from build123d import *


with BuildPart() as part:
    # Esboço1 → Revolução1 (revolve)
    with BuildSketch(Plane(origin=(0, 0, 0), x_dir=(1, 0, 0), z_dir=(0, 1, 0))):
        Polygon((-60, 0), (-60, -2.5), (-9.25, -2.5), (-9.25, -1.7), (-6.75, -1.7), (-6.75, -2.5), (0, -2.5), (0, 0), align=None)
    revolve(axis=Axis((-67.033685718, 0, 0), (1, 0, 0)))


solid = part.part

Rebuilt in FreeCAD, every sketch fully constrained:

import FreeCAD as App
import Part
import Sketcher
Q = App.Units.Quantity

doc = App.newDocument("Part")
body = doc.addObject("PartDesign::Body", "Body")

sketch1 = body.newObject("Sketcher::SketchObject", "Sketch")
sketch1.AttachmentSupport = (doc.getObject("XZ_Plane"), [""])
sketch1.MapMode = "FlatFace"
sketch1.addGeometry([
    Part.LineSegment(App.Vector(-60, 0, 0), App.Vector(-60, 2.5, 0)),
    Part.LineSegment(App.Vector(-60, 2.5, 0), App.Vector(-9.25, 2.5, 0)),
    Part.LineSegment(App.Vector(-9.25, 2.5, 0), App.Vector(-9.25, 1.7, 0)),
    Part.LineSegment(App.Vector(-9.25, 1.7, 0), App.Vector(-6.75, 1.7, 0)),
    Part.LineSegment(App.Vector(-6.75, 1.7, 0), App.Vector(-6.75, 2.5, 0)),
    Part.LineSegment(App.Vector(-6.75, 2.5, 0), App.Vector(0, 2.5, 0)),
    Part.LineSegment(App.Vector(0, 2.5, 0), App.Vector(0, 0, 0)),
    Part.LineSegment(App.Vector(0, 0, 0), App.Vector(-60, 0, 0)),
], False)
sketch1.addConstraint([
    Sketcher.Constraint("Coincident", 0, 2, 1, 1),
    Sketcher.Constraint("Coincident", 1, 2, 2, 1),
    Sketcher.Constraint("Coincident", 2, 2, 3, 1),
    Sketcher.Constraint("Coincident", 3, 2, 4, 1),
    Sketcher.Constraint("Coincident", 4, 2, 5, 1),
    Sketcher.Constraint("Coincident", 5, 2, 6, 1),
    Sketcher.Constraint("Coincident", 6, 2, 7, 1),
    Sketcher.Constraint("Coincident", 7, 2, 0, 1),
    Sketcher.Constraint("Vertical", 0),
    Sketcher.Constraint("Horizontal", 1),
    Sketcher.Constraint("Vertical", 2),
    Sketcher.Constraint("Horizontal", 3),
    Sketcher.Constraint("Vertical", 4),
    Sketcher.Constraint("Horizontal", 5),
    Sketcher.Constraint("Vertical", 6),
    Sketcher.Constraint("Horizontal", 7),
    Sketcher.Constraint("Coincident", 6, 2, -1, 1),
    Sketcher.Constraint("Horizontal", 1, 2, 4, 2),
    Sketcher.Constraint("Equal", 3, 0),
    Sketcher.Constraint("DistanceX", 7, 2, 7, 1, Q("60 mm")),
    Sketcher.Constraint("DistanceX", 3, 1, 3, 2, Q("2.5 mm")),
    Sketcher.Constraint("DistanceY", 2, 2, 2, 1, Q("0.8 mm")),
    Sketcher.Constraint("DistanceX", 1, 1, 1, 2, Q("50.75 mm")),
])
revolution = body.newObject("PartDesign::Revolution", "Revolution")
revolution.Profile = sketch1
revolution.ReferenceAxis = (sketch1, ["H_Axis"])
revolution.Angle = 360

doc.recompute()
